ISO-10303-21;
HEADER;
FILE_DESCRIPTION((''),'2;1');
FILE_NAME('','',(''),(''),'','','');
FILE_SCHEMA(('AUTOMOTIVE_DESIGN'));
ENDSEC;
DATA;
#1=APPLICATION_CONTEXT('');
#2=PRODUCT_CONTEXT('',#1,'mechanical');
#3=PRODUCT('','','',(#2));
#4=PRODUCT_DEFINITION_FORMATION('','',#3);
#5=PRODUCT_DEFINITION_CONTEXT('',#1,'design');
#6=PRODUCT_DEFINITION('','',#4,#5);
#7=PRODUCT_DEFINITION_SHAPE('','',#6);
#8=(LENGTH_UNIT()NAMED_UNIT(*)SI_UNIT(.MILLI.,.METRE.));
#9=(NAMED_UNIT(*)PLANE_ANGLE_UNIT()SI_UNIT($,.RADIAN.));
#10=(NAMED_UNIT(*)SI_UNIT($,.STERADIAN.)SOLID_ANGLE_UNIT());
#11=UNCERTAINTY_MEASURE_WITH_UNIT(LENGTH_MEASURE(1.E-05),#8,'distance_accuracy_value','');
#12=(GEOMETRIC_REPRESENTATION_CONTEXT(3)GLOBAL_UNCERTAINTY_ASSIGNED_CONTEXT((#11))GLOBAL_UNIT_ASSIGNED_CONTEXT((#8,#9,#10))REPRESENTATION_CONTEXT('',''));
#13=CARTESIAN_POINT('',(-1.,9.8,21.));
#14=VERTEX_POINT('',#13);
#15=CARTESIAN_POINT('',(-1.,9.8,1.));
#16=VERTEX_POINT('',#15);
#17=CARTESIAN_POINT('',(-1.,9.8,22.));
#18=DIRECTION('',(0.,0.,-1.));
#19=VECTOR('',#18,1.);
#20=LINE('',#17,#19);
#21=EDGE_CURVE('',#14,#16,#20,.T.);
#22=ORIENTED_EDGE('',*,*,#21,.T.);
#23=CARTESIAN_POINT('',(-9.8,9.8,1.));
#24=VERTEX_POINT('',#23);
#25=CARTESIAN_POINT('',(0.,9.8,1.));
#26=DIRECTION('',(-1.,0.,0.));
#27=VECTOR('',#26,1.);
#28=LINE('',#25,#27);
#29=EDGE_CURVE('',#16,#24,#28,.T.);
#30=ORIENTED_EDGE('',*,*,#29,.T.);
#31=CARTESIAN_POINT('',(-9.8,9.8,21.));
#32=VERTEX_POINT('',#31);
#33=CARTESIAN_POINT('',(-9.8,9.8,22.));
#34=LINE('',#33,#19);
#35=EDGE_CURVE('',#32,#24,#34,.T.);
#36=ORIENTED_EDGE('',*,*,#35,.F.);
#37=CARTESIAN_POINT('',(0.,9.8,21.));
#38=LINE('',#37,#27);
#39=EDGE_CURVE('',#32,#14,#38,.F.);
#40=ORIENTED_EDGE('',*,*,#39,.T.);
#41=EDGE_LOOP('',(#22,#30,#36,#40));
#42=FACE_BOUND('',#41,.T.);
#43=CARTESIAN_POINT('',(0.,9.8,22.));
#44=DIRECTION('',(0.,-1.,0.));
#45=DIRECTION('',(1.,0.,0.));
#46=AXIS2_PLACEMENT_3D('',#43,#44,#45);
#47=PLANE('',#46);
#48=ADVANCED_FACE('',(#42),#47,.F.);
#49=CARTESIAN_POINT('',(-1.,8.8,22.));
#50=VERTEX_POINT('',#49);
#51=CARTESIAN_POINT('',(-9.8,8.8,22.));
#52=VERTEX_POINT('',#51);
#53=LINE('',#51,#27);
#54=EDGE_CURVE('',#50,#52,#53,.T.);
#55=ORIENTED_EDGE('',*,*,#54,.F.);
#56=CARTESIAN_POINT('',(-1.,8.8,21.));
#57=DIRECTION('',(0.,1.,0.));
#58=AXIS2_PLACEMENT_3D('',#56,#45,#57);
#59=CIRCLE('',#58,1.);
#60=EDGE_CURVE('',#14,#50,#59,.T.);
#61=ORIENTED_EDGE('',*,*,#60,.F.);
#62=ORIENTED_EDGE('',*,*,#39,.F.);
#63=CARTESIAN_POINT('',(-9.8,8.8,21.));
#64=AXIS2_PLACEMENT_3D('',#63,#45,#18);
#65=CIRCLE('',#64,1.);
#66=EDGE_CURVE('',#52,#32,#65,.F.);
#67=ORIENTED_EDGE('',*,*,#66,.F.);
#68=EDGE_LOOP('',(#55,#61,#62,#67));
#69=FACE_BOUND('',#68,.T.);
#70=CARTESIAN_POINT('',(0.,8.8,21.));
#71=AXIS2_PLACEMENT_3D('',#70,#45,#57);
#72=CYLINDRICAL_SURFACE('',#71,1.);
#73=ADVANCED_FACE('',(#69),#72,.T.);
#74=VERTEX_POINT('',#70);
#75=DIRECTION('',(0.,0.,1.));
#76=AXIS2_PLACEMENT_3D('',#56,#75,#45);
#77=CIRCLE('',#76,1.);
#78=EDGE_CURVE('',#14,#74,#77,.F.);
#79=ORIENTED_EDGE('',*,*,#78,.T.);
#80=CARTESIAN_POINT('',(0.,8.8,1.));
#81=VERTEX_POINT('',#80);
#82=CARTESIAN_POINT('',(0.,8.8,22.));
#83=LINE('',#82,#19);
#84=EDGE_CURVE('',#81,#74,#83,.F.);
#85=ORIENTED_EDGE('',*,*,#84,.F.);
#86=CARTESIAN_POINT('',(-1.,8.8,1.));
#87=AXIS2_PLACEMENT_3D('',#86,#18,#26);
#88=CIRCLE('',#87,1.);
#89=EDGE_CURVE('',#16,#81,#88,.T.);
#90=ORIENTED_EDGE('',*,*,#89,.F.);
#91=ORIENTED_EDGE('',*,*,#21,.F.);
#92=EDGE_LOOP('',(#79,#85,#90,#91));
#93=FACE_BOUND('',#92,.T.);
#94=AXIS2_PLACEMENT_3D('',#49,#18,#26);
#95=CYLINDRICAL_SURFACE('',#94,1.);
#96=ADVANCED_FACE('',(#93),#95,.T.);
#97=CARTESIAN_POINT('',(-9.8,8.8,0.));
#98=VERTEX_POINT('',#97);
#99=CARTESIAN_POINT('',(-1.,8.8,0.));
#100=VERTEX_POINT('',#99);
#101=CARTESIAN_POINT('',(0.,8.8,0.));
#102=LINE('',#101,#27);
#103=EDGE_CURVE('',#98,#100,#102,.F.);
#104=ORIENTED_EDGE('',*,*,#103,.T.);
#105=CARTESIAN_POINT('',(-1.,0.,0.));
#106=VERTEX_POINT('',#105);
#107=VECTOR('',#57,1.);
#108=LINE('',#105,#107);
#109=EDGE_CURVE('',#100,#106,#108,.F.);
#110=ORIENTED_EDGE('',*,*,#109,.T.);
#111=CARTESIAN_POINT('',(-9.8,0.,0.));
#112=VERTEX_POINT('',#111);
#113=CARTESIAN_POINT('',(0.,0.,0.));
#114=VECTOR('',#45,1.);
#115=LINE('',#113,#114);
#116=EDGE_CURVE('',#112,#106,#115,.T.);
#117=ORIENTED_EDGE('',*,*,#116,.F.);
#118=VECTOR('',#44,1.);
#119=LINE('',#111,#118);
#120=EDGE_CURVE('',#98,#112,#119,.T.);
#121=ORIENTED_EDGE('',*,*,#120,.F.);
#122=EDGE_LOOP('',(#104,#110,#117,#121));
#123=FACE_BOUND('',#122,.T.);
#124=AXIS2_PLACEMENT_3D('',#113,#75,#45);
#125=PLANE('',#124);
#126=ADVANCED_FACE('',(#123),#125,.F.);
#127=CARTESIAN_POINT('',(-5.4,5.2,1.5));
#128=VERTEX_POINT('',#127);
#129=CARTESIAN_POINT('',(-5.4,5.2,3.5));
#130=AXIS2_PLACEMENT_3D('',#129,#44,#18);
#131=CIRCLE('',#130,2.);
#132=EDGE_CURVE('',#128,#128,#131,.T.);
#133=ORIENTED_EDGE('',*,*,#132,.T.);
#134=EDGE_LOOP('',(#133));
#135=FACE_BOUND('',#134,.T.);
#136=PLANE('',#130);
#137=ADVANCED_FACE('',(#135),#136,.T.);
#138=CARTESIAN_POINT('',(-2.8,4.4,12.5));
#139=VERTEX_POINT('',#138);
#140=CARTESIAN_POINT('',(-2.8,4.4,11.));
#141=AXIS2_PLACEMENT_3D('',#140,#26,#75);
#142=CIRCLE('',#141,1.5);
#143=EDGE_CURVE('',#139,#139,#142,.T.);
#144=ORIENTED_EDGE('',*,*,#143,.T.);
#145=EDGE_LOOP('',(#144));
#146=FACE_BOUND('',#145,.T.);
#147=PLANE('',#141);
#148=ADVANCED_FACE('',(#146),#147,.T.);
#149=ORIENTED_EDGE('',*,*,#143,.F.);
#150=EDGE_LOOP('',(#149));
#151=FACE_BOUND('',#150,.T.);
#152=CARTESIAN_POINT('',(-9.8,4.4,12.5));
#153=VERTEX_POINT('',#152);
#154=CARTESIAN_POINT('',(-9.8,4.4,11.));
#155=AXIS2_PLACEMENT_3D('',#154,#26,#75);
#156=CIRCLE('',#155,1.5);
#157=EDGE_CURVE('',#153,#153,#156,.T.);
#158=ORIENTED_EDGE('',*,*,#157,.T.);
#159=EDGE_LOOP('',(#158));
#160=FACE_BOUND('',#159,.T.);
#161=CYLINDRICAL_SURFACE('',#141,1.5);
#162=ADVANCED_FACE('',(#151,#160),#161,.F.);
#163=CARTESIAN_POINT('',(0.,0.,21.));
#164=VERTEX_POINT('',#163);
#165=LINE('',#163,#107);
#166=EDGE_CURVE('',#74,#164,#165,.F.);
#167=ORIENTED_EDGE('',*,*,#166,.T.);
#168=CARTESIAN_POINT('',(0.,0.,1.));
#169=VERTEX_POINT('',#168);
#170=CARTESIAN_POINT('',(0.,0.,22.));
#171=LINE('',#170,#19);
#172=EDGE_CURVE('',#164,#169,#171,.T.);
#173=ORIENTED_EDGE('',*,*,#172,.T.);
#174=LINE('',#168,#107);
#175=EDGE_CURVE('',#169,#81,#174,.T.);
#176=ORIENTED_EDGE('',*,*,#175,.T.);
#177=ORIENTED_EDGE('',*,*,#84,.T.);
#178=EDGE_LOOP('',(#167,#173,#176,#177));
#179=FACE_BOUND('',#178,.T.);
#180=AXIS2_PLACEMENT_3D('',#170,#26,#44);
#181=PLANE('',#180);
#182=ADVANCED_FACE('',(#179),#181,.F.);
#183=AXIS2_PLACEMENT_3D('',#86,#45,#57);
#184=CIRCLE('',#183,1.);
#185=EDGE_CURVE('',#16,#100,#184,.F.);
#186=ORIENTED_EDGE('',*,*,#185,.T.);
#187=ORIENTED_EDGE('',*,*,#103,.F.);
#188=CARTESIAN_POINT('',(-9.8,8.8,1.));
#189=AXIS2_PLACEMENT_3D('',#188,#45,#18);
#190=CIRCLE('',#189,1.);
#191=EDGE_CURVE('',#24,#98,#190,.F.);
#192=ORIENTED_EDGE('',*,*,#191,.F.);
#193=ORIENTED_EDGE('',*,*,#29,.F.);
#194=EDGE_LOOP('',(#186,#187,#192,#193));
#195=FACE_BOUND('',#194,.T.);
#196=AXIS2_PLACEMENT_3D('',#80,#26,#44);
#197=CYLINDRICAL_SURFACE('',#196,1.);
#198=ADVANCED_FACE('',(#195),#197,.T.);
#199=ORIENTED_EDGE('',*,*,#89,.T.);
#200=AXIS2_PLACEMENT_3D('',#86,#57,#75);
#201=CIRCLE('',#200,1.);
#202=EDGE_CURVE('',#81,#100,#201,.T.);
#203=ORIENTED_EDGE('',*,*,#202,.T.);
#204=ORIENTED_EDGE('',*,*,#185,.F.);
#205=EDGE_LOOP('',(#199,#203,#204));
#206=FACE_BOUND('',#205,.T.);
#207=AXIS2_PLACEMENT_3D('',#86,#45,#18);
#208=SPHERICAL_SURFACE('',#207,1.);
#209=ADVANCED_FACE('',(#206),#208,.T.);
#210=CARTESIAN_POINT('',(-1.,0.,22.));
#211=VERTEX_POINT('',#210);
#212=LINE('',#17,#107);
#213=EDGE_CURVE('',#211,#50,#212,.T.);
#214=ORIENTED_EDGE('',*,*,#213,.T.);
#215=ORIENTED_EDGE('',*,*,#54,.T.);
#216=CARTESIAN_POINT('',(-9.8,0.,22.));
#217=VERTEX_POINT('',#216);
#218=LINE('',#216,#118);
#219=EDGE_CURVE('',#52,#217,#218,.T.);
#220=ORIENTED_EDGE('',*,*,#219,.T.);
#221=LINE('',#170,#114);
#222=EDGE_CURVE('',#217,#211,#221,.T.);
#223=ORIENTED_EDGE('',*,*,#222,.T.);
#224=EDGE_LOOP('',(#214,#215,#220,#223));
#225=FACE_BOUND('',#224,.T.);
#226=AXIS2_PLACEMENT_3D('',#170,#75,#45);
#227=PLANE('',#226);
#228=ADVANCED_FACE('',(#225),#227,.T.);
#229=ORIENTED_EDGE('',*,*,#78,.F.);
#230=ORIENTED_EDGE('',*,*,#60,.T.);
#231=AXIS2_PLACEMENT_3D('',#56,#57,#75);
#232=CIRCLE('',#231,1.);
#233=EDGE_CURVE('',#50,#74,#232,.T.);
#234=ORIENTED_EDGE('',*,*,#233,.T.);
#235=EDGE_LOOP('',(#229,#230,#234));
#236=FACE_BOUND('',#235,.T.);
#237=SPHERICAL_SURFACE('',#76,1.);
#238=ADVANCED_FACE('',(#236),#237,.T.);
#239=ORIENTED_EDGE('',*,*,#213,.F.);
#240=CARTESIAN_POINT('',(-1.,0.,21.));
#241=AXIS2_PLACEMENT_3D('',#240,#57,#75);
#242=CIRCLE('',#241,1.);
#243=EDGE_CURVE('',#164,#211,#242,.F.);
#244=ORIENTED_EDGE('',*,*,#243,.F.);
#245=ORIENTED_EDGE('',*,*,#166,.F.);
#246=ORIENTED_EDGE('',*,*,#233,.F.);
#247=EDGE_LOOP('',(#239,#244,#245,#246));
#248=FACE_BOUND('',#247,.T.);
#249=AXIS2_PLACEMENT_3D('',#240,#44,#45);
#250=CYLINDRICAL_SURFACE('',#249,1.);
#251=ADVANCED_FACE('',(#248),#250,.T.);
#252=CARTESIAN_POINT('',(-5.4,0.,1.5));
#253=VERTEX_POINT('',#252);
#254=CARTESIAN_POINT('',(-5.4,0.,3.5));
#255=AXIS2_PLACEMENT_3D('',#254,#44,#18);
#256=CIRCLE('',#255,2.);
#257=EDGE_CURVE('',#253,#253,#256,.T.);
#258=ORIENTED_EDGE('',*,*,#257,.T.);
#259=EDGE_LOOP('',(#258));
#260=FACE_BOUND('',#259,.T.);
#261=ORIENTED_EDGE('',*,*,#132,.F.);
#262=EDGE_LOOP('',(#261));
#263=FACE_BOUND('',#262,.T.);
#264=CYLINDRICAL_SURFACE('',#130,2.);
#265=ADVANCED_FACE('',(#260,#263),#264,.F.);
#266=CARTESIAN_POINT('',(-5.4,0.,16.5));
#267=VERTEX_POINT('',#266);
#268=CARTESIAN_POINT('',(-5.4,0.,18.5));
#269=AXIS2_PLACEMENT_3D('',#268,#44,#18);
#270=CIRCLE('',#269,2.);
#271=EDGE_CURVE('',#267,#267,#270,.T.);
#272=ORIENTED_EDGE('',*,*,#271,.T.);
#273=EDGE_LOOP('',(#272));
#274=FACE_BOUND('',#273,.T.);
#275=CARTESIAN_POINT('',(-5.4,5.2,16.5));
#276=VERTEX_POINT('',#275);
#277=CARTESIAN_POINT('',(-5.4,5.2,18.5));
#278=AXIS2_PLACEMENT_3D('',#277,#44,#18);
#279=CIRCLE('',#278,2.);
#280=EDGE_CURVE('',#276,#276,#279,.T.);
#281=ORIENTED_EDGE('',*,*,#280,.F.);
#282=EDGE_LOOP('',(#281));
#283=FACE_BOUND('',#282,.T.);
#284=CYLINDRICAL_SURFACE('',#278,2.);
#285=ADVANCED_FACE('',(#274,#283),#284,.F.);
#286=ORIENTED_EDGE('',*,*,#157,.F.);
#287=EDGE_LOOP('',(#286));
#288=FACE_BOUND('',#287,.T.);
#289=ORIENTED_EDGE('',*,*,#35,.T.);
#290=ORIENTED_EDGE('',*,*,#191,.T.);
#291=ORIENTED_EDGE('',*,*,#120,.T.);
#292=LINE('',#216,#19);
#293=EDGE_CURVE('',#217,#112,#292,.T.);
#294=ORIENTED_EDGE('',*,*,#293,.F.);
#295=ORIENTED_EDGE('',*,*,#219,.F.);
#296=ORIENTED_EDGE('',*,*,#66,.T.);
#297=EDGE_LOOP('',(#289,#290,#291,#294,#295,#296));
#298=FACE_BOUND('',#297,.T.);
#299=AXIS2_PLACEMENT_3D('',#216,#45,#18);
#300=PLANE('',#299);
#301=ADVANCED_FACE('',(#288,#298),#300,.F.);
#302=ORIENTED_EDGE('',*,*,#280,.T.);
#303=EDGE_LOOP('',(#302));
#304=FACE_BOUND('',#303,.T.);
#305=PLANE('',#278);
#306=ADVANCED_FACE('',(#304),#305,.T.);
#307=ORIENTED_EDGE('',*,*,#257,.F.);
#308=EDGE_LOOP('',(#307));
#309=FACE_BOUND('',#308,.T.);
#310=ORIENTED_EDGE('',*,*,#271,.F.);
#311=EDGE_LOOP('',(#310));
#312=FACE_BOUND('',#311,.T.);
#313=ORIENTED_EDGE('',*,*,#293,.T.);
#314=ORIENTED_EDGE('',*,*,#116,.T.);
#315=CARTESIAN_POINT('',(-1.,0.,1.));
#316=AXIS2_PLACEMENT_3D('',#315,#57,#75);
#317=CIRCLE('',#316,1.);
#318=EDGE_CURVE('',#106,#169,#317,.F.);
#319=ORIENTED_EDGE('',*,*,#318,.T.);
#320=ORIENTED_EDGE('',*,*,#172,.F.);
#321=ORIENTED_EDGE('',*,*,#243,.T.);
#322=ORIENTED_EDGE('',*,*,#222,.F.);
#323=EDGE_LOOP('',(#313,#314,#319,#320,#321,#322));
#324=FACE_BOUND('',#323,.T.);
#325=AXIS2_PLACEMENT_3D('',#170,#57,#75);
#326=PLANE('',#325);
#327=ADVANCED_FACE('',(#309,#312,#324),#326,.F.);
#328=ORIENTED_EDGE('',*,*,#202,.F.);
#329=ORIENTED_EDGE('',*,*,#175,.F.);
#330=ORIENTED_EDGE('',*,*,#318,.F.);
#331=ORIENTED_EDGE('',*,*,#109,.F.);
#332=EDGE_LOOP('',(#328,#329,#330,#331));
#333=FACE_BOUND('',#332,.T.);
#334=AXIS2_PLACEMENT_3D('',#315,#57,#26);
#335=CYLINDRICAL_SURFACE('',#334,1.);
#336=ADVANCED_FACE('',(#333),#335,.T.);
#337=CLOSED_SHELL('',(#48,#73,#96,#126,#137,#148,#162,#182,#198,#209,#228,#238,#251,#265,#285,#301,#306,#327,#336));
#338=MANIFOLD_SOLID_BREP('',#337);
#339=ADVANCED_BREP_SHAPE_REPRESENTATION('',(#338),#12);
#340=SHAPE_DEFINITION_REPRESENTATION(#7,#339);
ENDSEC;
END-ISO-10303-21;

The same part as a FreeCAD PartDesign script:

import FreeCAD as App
import Part
import Sketcher
from FreeCAD import Vector


def edges_at(feature, points):
    """Names of the edges that pass closest to the given points."""
    edges = feature.Shape.Edges
    near = lambda p: min(range(len(edges)), key=lambda i: edges[i].distToShape(Part.Vertex(*p))[0])
    return sorted({f"Edge{near(p) + 1}" for p in points})

doc = App.newDocument("Part")
body = doc.addObject("PartDesign::Body", "Body")

# Sketch on XY plane
sketch1 = body.newObject("Sketcher::SketchObject", "Sketch")
sketch1.AttachmentSupport = (doc.getObject("XY_Plane"), [""])
sketch1.MapMode = "FlatFace"
sketch1.addGeometry(Part.LineSegment(Vector(-9.8, 9.8, 0), Vector(-9.8, 0, 0)), False)
sketch1.addGeometry(Part.LineSegment(Vector(-9.8, 0, 0), Vector(0, 0, 0)), False)
sketch1.addGeometry(Part.LineSegment(Vector(0, 0, 0), Vector(0, 9.8, 0)), False)
sketch1.addGeometry(Part.LineSegment(Vector(0, 9.8, 0), Vector(-9.8, 9.8, 0)), False)
sketch1.addConstraint(Sketcher.Constraint("Coincident", 0, 2, 1, 1))
sketch1.addConstraint(Sketcher.Constraint("Coincident", 1, 2, 2, 1))
sketch1.addConstraint(Sketcher.Constraint("Coincident", 2, 2, 3, 1))
sketch1.addConstraint(Sketcher.Constraint("Coincident", 3, 2, 0, 1))
sketch1.addConstraint(Sketcher.Constraint("Vertical", 0))
sketch1.addConstraint(Sketcher.Constraint("Horizontal", 1))
sketch1.addConstraint(Sketcher.Constraint("Vertical", 2))
sketch1.addConstraint(Sketcher.Constraint("Horizontal", 3))
sketch1.addConstraint(Sketcher.Constraint("Coincident", 1, 2, -1, 1))
sketch1.addConstraint(Sketcher.Constraint("Equal", 3, 0))
sketch1.addConstraint(Sketcher.Constraint("DistanceX", 1, 1, 1, 2, 9.8))
pad1 = body.newObject("PartDesign::Pad", "Pad")
pad1.Profile = sketch1
pad1.Length = 22
doc.recompute()

fillet = body.newObject("PartDesign::Fillet", "Fillet")
fillet.Base = (pad1, edges_at(pad1, [
    (0, 4.9, 22),
    (-4.9, 9.8, 0),
    (0, 4.9, 0),
    (0, 9.8, 11),
    (-4.9, 9.8, 22),
]))
fillet.Radius = 1

# Sketch on YZ plane
sketch2 = body.newObject("Sketcher::SketchObject", "Sketch001")
sketch2.AttachmentSupport = (doc.getObject("YZ_Plane"), [""])
sketch2.MapMode = "FlatFace"
sketch2.AttachmentOffset = App.Placement(Vector(0, 0, -9.8), App.Rotation())
sketch2.addGeometry(Part.Circle(Vector(4.4, 11, 0), Vector(0, 0, 1), 1.5), False)
sketch2.addConstraint(Sketcher.Constraint("Diameter", 0, 3.0))
sketch2.addConstraint(Sketcher.Constraint("DistanceY", -1, 1, 0, 3, 11.0))
sketch2.addConstraint(Sketcher.Constraint("DistanceX", -1, 1, 0, 3, 4.4))
pocket1 = body.newObject("PartDesign::Pocket", "Pocket")
pocket1.Profile = sketch2
pocket1.Length = 7
pocket1.Reversed = True

# Sketch on XZ plane
sketch3 = body.newObject("Sketcher::SketchObject", "Sketch002")
sketch3.AttachmentSupport = (doc.getObject("XZ_Plane"), [""])
sketch3.MapMode = "FlatFace"
sketch3.addGeometry(Part.Circle(Vector(-5.4, 18.5, 0), Vector(0, 0, 1), 2), False)
sketch3.addGeometry(Part.Circle(Vector(-5.4, 3.5, 0), Vector(0, 0, 1), 2), False)
sketch3.addConstraint(Sketcher.Constraint("Equal", 0, 1))
sketch3.addConstraint(Sketcher.Constraint("Vertical", 0, 3, 1, 3))
sketch3.addConstraint(Sketcher.Constraint("Diameter", 0, 4.0))
sketch3.addConstraint(Sketcher.Constraint("DistanceY", 1, 3, 0, 3, 15.0))
sketch3.addConstraint(Sketcher.Constraint("DistanceX", 0, 3, -1, 1, 5.4))
sketch3.addConstraint(Sketcher.Constraint("DistanceY", -1, 1, 0, 3, 18.5))
pocket2 = body.newObject("PartDesign::Pocket", "Pocket001")
pocket2.Profile = sketch3
pocket2.Length = 5.2

doc.recompute()
